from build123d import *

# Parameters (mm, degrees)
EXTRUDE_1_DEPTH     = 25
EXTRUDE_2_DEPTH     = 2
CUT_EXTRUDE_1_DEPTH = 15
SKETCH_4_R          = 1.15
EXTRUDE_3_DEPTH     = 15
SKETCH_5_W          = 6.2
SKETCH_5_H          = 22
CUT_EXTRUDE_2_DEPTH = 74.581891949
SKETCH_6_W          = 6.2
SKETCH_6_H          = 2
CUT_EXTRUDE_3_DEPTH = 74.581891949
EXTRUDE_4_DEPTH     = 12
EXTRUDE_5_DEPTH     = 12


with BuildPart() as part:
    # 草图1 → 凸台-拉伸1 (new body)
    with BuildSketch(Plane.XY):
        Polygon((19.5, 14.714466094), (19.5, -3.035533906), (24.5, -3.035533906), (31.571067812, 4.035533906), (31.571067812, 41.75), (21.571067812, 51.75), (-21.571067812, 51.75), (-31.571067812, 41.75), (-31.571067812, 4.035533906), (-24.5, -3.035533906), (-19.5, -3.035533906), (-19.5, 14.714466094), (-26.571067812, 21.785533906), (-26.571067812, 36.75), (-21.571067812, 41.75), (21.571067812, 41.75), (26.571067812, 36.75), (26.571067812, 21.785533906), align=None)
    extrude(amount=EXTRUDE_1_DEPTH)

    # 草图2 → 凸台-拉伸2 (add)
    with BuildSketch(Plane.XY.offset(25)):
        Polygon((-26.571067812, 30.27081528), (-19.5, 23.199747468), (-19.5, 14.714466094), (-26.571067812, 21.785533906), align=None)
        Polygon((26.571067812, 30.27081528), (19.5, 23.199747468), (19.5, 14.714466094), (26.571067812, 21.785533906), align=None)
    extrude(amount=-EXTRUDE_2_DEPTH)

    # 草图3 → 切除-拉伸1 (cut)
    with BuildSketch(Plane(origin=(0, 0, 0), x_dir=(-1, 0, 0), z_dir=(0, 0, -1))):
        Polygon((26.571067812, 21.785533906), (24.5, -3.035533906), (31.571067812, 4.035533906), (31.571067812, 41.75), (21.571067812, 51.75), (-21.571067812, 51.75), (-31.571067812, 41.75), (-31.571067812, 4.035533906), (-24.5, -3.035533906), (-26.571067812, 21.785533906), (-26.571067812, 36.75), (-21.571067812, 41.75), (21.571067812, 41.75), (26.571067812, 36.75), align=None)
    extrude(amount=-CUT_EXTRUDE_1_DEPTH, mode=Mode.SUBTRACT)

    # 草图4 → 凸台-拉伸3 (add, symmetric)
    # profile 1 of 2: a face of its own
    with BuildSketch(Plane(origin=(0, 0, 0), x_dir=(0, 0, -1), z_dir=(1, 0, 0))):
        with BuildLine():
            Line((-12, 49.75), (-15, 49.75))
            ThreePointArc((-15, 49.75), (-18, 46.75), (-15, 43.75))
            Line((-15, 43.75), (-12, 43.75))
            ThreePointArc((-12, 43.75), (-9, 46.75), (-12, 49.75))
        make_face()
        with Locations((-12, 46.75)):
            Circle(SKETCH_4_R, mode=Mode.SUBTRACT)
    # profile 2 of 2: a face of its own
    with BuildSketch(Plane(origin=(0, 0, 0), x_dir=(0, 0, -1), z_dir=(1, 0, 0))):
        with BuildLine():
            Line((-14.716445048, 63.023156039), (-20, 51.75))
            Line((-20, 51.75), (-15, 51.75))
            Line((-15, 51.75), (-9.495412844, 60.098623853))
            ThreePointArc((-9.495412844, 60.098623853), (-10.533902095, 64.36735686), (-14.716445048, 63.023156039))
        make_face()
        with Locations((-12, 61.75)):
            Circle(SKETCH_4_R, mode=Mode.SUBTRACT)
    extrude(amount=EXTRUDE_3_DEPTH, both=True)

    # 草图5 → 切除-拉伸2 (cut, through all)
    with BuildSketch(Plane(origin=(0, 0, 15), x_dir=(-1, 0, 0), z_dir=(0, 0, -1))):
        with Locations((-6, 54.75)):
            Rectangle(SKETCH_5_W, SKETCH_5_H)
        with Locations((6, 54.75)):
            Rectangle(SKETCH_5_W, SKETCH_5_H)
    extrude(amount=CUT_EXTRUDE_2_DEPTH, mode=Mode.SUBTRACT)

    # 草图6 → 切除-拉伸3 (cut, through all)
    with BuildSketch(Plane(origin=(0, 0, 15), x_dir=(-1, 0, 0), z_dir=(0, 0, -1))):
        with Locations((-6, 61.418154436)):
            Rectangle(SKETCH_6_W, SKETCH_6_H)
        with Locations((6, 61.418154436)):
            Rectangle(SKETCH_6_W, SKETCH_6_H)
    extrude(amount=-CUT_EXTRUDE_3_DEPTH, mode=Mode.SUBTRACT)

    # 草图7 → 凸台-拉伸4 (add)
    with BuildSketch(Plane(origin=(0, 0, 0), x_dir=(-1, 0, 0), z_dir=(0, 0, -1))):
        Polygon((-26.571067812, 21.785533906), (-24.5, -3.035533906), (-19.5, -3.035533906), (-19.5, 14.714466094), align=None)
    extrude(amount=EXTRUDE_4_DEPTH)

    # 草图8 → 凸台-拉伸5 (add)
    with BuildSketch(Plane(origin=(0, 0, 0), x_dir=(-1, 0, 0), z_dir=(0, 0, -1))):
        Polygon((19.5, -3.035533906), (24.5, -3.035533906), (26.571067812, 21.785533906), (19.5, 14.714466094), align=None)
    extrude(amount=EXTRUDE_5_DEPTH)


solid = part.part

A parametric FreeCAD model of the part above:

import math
import FreeCAD as App
import Part
import Sketcher

V = App.Vector
Q = App.Units.Quantity


def add_polygon(sketch, points):
    """Adds a closed chain of lines whose ends are joined by coincident constraints."""
    first, n = sketch.GeometryCount, len(points)
    for a, b in zip(points, points[1:] + points[:1]):
        sketch.addGeometry(Part.LineSegment(App.Vector(*a, 0), App.Vector(*b, 0)), False)
    for i in range(n):
        sketch.addConstraint(Sketcher.Constraint("Coincident", first + i, 2, first + (i + 1) % n, 1))

doc = App.newDocument("Part")
body = doc.addObject("PartDesign::Body", "Body")

sketch1 = body.newObject("Sketcher::SketchObject", "Sketch")
sketch1.AttachmentSupport = (doc.getObject("XY_Plane"), [""])
sketch1.MapMode = "FlatFace"
add_polygon(sketch1, [(20, 15), (20, -3), (24, -3), (32, 4), (32, 42), (22, 52), (-22, 52), (-32, 42), (-32, 4), (-24, -3), (-20, -3), (-20, 15), (-27, 22), (-27, 37), (-22, 42), (22, 42), (27, 37), (27, 22)])
sketch1.addConstraint([
    Sketcher.Constraint("Vertical", 0),
    Sketcher.Constraint("Horizontal", 1),
    Sketcher.Constraint("Vertical", 3),
    Sketcher.Constraint("Horizontal", 5),
    Sketcher.Constraint("Vertical", 7),
    Sketcher.Constraint("Horizontal", 9),
    Sketcher.Constraint("Vertical", 10),
    Sketcher.Constraint("Vertical", 12),
    Sketcher.Constraint("Horizontal", 14),
    Sketcher.Constraint("Vertical", 16),
    Sketcher.Constraint("Symmetric", 3, 2, 6, 2, -2),
    Sketcher.Constraint("Symmetric", 1, 2, 8, 2, -2),
    Sketcher.Constraint("Symmetric", 12, 2, 15, 2, -2),
    Sketcher.Constraint("Symmetric", 10, 2, 17, 2, -2),
    Sketcher.Constraint("Perpendicular", 2, 4),
    Sketcher.Constraint("Perpendicular", 4, 6),
    Sketcher.Constraint("Perpendicular", 6, 8),
    Sketcher.Constraint("Parallel", 8, 11),
    Sketcher.Constraint("Perpendicular", 11, 13),
    Sketcher.Constraint("Perpendicular", 13, 15),
    Sketcher.Constraint("Perpendicular", 15, 17),
    Sketcher.Constraint("Horizontal", 2, 2, 7, 2),
    Sketcher.Constraint("Horizontal", 6, 2, 13, 2),
    Sketcher.Constraint("Vertical", 5, 2, 13, 2),
    Sketcher.Constraint("Equal", 8, 11),
    Sketcher.Constraint("DistanceX", 1, 1, 1, 2, 5.0),
    Sketcher.Constraint("Distance", 2, 10.0),
    Sketcher.Constraint("DistanceX", 4, 2, 3, 2, 10.0),
    Sketcher.Constraint("DistanceX", 8, 2, 0, 2, 44.0),
    Sketcher.Constraint("DistanceY", 0, 2, 0, 1, 17.75),
    Sketcher.Constraint("DistanceY", -1, 1, 3, 2, 41.75),
    Sketcher.Constraint("DistanceY", 3, 1, 3, 2, 37.714466),
])
pad1 = body.newObject("PartDesign::Pad", "Pad")
pad1.Profile = sketch1
pad1.Length = 25

sketch2 = body.newObject("Sketcher::SketchObject", "Sketch001")
sketch2.AttachmentSupport = (doc.getObject("XY_Plane"), [""])
sketch2.MapMode = "FlatFace"
sketch2.AttachmentOffset = App.Placement(V(0, 0, 25), App.Rotation())
add_polygon(sketch2, [(-20, 23), (-27, 30), (-27, 22), (-20, 15)])
add_polygon(sketch2, [(27, 30), (20, 23), (20, 15), (27, 22)])
sketch2.addConstraint([
    Sketcher.Constraint("Vertical", 1),
    Sketcher.Constraint("Vertical", 3),
    Sketcher.Constraint("Vertical", 5),
    Sketcher.Constraint("Vertical", 7),
    Sketcher.Constraint("Symmetric", 3, 2, 4, 2, -2),
    Sketcher.Constraint("Symmetric", 1, 2, 6, 2, -2),
    Sketcher.Constraint("Parallel", 0, 2),
    Sketcher.Constraint("Perpendicular", 2, 4),
    Sketcher.Constraint("Parallel", 4, 6),
    Sketcher.Constraint("Horizontal", 2, 2, 5, 2),
    Sketcher.Constraint("Distance", 0, 10.0),
    Sketcher.Constraint("DistanceX", 3, 2, 4, 2, 39.0),
    Sketcher.Constraint("DistanceY", 1, 2, 1, 1, 8.485281),
    Sketcher.Constraint("DistanceY", -1, 1, 0, 2, 30.270815),
])
pad2 = body.newObject("PartDesign::Pad", "Pad001")
pad2.Profile = sketch2
pad2.Length = 2
pad2.Reversed = True

sketch3 = body.newObject("Sketcher::SketchObject", "Sketch002")
sketch3.AttachmentSupport = (doc.getObject("XY_Plane"), [""])
sketch3.MapMode = "FlatFace"
add_polygon(sketch3, [(-27, 22), (-24, -3), (-32, 4), (-32, 42), (-22, 52), (22, 52), (32, 42), (32, 4), (24, -3), (27, 22), (27, 37), (22, 42), (-22, 42), (-27, 37)])
sketch3.addConstraint([
    Sketcher.Constraint("Vertical", 2),
    Sketcher.Constraint("Horizontal", 4),
    Sketcher.Constraint("Vertical", 6),
    Sketcher.Constraint("Vertical", 9),
    Sketcher.Constraint("Horizontal", 11),
    Sketcher.Constraint("Vertical", 13),
    Sketcher.Constraint("Symmetric", 2, 2, 5, 2, -2),
    Sketcher.Constraint("Symmetric", 0, 2, 7, 2, -2),
    Sketcher.Constraint("Symmetric", 9, 2, 12, 2, -2),
    Sketcher.Constraint("Perpendicular", 1, 3),
    Sketcher.Constraint("Perpendicular", 3, 5),
    Sketcher.Constraint("Perpendicular", 5, 7),
    Sketcher.Constraint("Perpendicular", 7, 10),
    Sketcher.Constraint("Perpendicular", 10, 12),
    Sketcher.Constraint("Horizontal", 1, 2, 6, 2),
    Sketcher.Constraint("Horizontal", 5, 2, 10, 2),
    Sketcher.Constraint("Horizontal", 8, 2, 13, 2),
    Sketcher.Constraint("Vertical", 4, 2, 10, 2),
    Sketcher.Constraint("Distance", 1, 10.0),
    Sketcher.Constraint("DistanceX", 2, 2, 3, 2, 10.0),
    Sketcher.Constraint("DistanceX", 0, 2, 7, 2, 49.0),
    Sketcher.Constraint("DistanceX", 8, 2, 6, 2, 5.0),
    Sketcher.Constraint("DistanceY", -1, 1, 2, 2, 41.75),
    Sketcher.Constraint("DistanceY", 6, 2, 8, 2, 17.75),
    Sketcher.Constraint("DistanceY", 2, 1, 2, 2, 37.714466),
])
pocket1 = body.newObject("PartDesign::Pocket", "Pocket")
pocket1.Profile = sketch3
pocket1.Length = 15
pocket1.Reversed = True

sketch4 = body.newObject("Sketcher::SketchObject", "Sketch003")
sketch4.AttachmentSupport = (doc.getObject("YZ_Plane"), [""])
sketch4.MapMode = "FlatFace"
sketch4.addGeometry([
    Part.LineSegment(V(49.8, 12, 0), V(49.8, 15, 0)),
    Part.ArcOfCircle(Part.Circle(V(46.8, 15, 0), V(0, 0, 1), 3), math.radians(0), math.radians(180)),
    Part.LineSegment(V(43.8, 15, 0), V(43.8, 12, 0)),
    Part.ArcOfCircle(Part.Circle(V(46.8, 12, 0), V(0, 0, 1), 3), math.radians(180), math.radians(360)),
    Part.Circle(V(46.8, 12, 0), V(0, 0, 1), 1.1),
    Part.LineSegment(V(63, 14.7, 0), V(51.8, 20, 0)),
    Part.LineSegment(V(51.8, 20, 0), V(51.8, 15, 0)),
    Part.LineSegment(V(51.8, 15, 0), V(60.1, 9.5, 0)),
    Part.ArcOfCircle(Part.Circle(V(61.8, 12, 0), V(0, 0, 1), 3), math.radians(-123), math.radians(65)),
    Part.Circle(V(61.8, 12, 0), V(0, 0, 1), 1.1),
], False)
sketch4.addConstraint([
    Sketcher.Constraint("Tangent", 0, 2, 1, 1),
    Sketcher.Constraint("Tangent", 1, 2, 2, 1),
    Sketcher.Constraint("Tangent", 2, 2, 3, 1),
    Sketcher.Constraint("Tangent", 3, 2, 0, 1),
    Sketcher.Constraint("Coincident", 5, 2, 6, 1),
    Sketcher.Constraint("Coincident", 6, 2, 7, 1),
    Sketcher.Constraint("Tangent", 7, 2, 8, 1),
    Sketcher.Constraint("Tangent", 8, 2, 5, 1),
    Sketcher.Constraint("Vertical", 0),
    Sketcher.Constraint("Vertical", 2),
    Sketcher.Constraint("Vertical", 6),
    Sketcher.Constraint("Coincident", 4, 3, 3, 3),
    Sketcher.Constraint("Coincident", 9, 3, 8, 3),
    Sketcher.Constraint("Equal", 3, 8),
    Sketcher.Constraint("Equal", 4, 9),
    Sketcher.Constraint("Horizontal", 4, 3, 8, 3),
    Sketcher.Constraint("Horizontal", 1, 2, 6, 2),
    Sketcher.Constraint("Radius", 1, 3.0),
    Sketcher.Constraint("Diameter", 4, 2.3),
    Sketcher.Constraint("DistanceY", 0, 1, 0, 2, 3.0),
    Sketcher.Constraint("DistanceY", 6, 2, 6, 1, 5.0),
    Sketcher.Constraint("Distance", 7, 10.0),
    Sketcher.Constraint("DistanceY", -1, 1, 1, 3, 15.0),
    Sketcher.Constraint("DistanceX", 3, 3, 8, 3, 15.0),
    Sketcher.Constraint("DistanceX", -1, 1, 1, 3, 46.75),
])
pad3 = body.newObject("PartDesign::Pad", "Pad002")
pad3.Profile = sketch4
pad3.Length = 30
pad3.Midplane = True

sketch5 = body.newObject("Sketcher::SketchObject", "Sketch004")
sketch5.AttachmentSupport = (doc.getObject("XY_Plane"), [""])
sketch5.MapMode = "FlatFace"
sketch5.AttachmentOffset = App.Placement(V(0, 0, 15), App.Rotation())
add_polygon(sketch5, [(9, 66), (9, 44), (3, 44), (3, 66)])
add_polygon(sketch5, [(-3, 66), (-3, 44), (-9, 44), (-9, 66)])
sketch5.addConstraint([
    Sketcher.Constraint("Vertical", 0),
    Sketcher.Constraint("Horizontal", 1),
    Sketcher.Constraint("Vertical", 2),
    Sketcher.Constraint("Horizontal", 3),
    Sketcher.Constraint("Vertical", 4),
    Sketcher.Constraint("Horizontal", 5),
    Sketcher.Constraint("Vertical", 6),
    Sketcher.Constraint("Horizontal", 7),
    Sketcher.Constraint("Symmetric", 1, 2, 4, 2, -2),
    Sketcher.Constraint("Symmetric", 3, 2, 6, 2, -2),
    Sketcher.Constraint("DistanceY", 0, 2, 0, 1, 22.0),
    Sketcher.Constraint("DistanceX", 1, 2, 1, 1, 6.2),
    Sketcher.Constraint("DistanceX", 4, 2, 0, 2, 12.0),
    Sketcher.Constraint("DistanceY", -1, 1, 0, 2, 43.75),
])
pocket2 = body.newObject("PartDesign::Pocket", "Pocket001")
pocket2.Profile = sketch5
pocket2.Type = "ThroughAll"

sketch6 = body.newObject("Sketcher::SketchObject", "Sketch005")
sketch6.AttachmentSupport = (doc.getObject("XY_Plane"), [""])
sketch6.MapMode = "FlatFace"
sketch6.AttachmentOffset = App.Placement(V(0, 0, 15), App.Rotation())
add_polygon(sketch6, [(9.1, 62.4), (9.1, 60.4), (2.9, 60.4), (2.9, 62.4)])
add_polygon(sketch6, [(-2.9, 62.4), (-2.9, 60.4), (-9.1, 60.4), (-9.1, 62.4)])
sketch6.addConstraint([
    Sketcher.Constraint("Vertical", 0),
    Sketcher.Constraint("Horizontal", 1),
    Sketcher.Constraint("Vertical", 2),
    Sketcher.Constraint("Horizontal", 3),
    Sketcher.Constraint("Vertical", 4),
    Sketcher.Constraint("Horizontal", 5),
    Sketcher.Constraint("Vertical", 6),
    Sketcher.Constraint("Horizontal", 7),
    Sketcher.Constraint("Symmetric", 1, 2, 4, 2, -2),
    Sketcher.Constraint("Symmetric", 3, 2, 6, 2, -2),
    Sketcher.Constraint("DistanceY", 0, 2, 0, 1, 2.0),
    Sketcher.Constraint("DistanceX", 1, 2, 1, 1, 6.2),
    Sketcher.Constraint("DistanceX", 4, 2, 0, 2, 12.0),
    Sketcher.Constraint("DistanceY", -1, 1, 0, 2, 60.418154),
])
pocket3 = body.newObject("PartDesign::Pocket", "Pocket002")
pocket3.Profile = sketch6
pocket3.Type = "ThroughAll"
pocket3.Reversed = True

sketch7 = body.newObject("Sketcher::SketchObject", "Sketch006")
sketch7.AttachmentSupport = (doc.getObject("XY_Plane"), [""])
sketch7.MapMode = "FlatFace"
add_polygon(sketch7, [(27, 22), (24, -3), (20, -3), (20, 15)])
sketch7.addConstraint([
    Sketcher.Constraint("Horizontal", 1),
    Sketcher.Constraint("Vertical", 2),
    Sketcher.Constraint("DistanceX", 1, 2, 1, 1, 5.0),
    Sketcher.Constraint("Angle", 3, Q("45 deg")),
    Sketcher.Constraint("Distance", 3, 10.0),
    Sketcher.Constraint("DistanceY", 2, 1, 2, 2, 17.75),
    Sketcher.Constraint("DistanceX", -1, 1, 0, 2, 24.5),
    Sketcher.Constraint("DistanceY", 0, 2, -1, 1, 3.035534),
])
pad4 = body.newObject("PartDesign::Pad", "Pad003")
pad4.Profile = sketch7
pad4.Length = 12
pad4.Reversed = True

sketch8 = body.newObject("Sketcher::SketchObject", "Sketch007")
sketch8.AttachmentSupport = (doc.getObject("XY_Plane"), [""])
sketch8.MapMode = "FlatFace"
add_polygon(sketch8, [(-20, -3), (-24, -3), (-27, 22), (-20, 15)])
sketch8.addConstraint([
    Sketcher.Constraint("Horizontal", 0),
    Sketcher.Constraint("Vertical", 3),
    Sketcher.Constraint("DistanceX", 0, 2, 0, 1, 5.0),
    Sketcher.Constraint("Angle", 2, Q("-45 deg")),
    Sketcher.Constraint("Distance", 2, 10.0),
    Sketcher.Constraint("DistanceY", 3, 2, 3, 1, 17.75),
    Sketcher.Constraint("DistanceX", 0, 2, -1, 1, 24.5),
    Sketcher.Constraint("DistanceY", 0, 2, -1, 1, 3.035534),
])
pad5 = body.newObject("PartDesign::Pad", "Pad004")
pad5.Profile = sketch8
pad5.Length = 12
pad5.Reversed = True

doc.recompute()
